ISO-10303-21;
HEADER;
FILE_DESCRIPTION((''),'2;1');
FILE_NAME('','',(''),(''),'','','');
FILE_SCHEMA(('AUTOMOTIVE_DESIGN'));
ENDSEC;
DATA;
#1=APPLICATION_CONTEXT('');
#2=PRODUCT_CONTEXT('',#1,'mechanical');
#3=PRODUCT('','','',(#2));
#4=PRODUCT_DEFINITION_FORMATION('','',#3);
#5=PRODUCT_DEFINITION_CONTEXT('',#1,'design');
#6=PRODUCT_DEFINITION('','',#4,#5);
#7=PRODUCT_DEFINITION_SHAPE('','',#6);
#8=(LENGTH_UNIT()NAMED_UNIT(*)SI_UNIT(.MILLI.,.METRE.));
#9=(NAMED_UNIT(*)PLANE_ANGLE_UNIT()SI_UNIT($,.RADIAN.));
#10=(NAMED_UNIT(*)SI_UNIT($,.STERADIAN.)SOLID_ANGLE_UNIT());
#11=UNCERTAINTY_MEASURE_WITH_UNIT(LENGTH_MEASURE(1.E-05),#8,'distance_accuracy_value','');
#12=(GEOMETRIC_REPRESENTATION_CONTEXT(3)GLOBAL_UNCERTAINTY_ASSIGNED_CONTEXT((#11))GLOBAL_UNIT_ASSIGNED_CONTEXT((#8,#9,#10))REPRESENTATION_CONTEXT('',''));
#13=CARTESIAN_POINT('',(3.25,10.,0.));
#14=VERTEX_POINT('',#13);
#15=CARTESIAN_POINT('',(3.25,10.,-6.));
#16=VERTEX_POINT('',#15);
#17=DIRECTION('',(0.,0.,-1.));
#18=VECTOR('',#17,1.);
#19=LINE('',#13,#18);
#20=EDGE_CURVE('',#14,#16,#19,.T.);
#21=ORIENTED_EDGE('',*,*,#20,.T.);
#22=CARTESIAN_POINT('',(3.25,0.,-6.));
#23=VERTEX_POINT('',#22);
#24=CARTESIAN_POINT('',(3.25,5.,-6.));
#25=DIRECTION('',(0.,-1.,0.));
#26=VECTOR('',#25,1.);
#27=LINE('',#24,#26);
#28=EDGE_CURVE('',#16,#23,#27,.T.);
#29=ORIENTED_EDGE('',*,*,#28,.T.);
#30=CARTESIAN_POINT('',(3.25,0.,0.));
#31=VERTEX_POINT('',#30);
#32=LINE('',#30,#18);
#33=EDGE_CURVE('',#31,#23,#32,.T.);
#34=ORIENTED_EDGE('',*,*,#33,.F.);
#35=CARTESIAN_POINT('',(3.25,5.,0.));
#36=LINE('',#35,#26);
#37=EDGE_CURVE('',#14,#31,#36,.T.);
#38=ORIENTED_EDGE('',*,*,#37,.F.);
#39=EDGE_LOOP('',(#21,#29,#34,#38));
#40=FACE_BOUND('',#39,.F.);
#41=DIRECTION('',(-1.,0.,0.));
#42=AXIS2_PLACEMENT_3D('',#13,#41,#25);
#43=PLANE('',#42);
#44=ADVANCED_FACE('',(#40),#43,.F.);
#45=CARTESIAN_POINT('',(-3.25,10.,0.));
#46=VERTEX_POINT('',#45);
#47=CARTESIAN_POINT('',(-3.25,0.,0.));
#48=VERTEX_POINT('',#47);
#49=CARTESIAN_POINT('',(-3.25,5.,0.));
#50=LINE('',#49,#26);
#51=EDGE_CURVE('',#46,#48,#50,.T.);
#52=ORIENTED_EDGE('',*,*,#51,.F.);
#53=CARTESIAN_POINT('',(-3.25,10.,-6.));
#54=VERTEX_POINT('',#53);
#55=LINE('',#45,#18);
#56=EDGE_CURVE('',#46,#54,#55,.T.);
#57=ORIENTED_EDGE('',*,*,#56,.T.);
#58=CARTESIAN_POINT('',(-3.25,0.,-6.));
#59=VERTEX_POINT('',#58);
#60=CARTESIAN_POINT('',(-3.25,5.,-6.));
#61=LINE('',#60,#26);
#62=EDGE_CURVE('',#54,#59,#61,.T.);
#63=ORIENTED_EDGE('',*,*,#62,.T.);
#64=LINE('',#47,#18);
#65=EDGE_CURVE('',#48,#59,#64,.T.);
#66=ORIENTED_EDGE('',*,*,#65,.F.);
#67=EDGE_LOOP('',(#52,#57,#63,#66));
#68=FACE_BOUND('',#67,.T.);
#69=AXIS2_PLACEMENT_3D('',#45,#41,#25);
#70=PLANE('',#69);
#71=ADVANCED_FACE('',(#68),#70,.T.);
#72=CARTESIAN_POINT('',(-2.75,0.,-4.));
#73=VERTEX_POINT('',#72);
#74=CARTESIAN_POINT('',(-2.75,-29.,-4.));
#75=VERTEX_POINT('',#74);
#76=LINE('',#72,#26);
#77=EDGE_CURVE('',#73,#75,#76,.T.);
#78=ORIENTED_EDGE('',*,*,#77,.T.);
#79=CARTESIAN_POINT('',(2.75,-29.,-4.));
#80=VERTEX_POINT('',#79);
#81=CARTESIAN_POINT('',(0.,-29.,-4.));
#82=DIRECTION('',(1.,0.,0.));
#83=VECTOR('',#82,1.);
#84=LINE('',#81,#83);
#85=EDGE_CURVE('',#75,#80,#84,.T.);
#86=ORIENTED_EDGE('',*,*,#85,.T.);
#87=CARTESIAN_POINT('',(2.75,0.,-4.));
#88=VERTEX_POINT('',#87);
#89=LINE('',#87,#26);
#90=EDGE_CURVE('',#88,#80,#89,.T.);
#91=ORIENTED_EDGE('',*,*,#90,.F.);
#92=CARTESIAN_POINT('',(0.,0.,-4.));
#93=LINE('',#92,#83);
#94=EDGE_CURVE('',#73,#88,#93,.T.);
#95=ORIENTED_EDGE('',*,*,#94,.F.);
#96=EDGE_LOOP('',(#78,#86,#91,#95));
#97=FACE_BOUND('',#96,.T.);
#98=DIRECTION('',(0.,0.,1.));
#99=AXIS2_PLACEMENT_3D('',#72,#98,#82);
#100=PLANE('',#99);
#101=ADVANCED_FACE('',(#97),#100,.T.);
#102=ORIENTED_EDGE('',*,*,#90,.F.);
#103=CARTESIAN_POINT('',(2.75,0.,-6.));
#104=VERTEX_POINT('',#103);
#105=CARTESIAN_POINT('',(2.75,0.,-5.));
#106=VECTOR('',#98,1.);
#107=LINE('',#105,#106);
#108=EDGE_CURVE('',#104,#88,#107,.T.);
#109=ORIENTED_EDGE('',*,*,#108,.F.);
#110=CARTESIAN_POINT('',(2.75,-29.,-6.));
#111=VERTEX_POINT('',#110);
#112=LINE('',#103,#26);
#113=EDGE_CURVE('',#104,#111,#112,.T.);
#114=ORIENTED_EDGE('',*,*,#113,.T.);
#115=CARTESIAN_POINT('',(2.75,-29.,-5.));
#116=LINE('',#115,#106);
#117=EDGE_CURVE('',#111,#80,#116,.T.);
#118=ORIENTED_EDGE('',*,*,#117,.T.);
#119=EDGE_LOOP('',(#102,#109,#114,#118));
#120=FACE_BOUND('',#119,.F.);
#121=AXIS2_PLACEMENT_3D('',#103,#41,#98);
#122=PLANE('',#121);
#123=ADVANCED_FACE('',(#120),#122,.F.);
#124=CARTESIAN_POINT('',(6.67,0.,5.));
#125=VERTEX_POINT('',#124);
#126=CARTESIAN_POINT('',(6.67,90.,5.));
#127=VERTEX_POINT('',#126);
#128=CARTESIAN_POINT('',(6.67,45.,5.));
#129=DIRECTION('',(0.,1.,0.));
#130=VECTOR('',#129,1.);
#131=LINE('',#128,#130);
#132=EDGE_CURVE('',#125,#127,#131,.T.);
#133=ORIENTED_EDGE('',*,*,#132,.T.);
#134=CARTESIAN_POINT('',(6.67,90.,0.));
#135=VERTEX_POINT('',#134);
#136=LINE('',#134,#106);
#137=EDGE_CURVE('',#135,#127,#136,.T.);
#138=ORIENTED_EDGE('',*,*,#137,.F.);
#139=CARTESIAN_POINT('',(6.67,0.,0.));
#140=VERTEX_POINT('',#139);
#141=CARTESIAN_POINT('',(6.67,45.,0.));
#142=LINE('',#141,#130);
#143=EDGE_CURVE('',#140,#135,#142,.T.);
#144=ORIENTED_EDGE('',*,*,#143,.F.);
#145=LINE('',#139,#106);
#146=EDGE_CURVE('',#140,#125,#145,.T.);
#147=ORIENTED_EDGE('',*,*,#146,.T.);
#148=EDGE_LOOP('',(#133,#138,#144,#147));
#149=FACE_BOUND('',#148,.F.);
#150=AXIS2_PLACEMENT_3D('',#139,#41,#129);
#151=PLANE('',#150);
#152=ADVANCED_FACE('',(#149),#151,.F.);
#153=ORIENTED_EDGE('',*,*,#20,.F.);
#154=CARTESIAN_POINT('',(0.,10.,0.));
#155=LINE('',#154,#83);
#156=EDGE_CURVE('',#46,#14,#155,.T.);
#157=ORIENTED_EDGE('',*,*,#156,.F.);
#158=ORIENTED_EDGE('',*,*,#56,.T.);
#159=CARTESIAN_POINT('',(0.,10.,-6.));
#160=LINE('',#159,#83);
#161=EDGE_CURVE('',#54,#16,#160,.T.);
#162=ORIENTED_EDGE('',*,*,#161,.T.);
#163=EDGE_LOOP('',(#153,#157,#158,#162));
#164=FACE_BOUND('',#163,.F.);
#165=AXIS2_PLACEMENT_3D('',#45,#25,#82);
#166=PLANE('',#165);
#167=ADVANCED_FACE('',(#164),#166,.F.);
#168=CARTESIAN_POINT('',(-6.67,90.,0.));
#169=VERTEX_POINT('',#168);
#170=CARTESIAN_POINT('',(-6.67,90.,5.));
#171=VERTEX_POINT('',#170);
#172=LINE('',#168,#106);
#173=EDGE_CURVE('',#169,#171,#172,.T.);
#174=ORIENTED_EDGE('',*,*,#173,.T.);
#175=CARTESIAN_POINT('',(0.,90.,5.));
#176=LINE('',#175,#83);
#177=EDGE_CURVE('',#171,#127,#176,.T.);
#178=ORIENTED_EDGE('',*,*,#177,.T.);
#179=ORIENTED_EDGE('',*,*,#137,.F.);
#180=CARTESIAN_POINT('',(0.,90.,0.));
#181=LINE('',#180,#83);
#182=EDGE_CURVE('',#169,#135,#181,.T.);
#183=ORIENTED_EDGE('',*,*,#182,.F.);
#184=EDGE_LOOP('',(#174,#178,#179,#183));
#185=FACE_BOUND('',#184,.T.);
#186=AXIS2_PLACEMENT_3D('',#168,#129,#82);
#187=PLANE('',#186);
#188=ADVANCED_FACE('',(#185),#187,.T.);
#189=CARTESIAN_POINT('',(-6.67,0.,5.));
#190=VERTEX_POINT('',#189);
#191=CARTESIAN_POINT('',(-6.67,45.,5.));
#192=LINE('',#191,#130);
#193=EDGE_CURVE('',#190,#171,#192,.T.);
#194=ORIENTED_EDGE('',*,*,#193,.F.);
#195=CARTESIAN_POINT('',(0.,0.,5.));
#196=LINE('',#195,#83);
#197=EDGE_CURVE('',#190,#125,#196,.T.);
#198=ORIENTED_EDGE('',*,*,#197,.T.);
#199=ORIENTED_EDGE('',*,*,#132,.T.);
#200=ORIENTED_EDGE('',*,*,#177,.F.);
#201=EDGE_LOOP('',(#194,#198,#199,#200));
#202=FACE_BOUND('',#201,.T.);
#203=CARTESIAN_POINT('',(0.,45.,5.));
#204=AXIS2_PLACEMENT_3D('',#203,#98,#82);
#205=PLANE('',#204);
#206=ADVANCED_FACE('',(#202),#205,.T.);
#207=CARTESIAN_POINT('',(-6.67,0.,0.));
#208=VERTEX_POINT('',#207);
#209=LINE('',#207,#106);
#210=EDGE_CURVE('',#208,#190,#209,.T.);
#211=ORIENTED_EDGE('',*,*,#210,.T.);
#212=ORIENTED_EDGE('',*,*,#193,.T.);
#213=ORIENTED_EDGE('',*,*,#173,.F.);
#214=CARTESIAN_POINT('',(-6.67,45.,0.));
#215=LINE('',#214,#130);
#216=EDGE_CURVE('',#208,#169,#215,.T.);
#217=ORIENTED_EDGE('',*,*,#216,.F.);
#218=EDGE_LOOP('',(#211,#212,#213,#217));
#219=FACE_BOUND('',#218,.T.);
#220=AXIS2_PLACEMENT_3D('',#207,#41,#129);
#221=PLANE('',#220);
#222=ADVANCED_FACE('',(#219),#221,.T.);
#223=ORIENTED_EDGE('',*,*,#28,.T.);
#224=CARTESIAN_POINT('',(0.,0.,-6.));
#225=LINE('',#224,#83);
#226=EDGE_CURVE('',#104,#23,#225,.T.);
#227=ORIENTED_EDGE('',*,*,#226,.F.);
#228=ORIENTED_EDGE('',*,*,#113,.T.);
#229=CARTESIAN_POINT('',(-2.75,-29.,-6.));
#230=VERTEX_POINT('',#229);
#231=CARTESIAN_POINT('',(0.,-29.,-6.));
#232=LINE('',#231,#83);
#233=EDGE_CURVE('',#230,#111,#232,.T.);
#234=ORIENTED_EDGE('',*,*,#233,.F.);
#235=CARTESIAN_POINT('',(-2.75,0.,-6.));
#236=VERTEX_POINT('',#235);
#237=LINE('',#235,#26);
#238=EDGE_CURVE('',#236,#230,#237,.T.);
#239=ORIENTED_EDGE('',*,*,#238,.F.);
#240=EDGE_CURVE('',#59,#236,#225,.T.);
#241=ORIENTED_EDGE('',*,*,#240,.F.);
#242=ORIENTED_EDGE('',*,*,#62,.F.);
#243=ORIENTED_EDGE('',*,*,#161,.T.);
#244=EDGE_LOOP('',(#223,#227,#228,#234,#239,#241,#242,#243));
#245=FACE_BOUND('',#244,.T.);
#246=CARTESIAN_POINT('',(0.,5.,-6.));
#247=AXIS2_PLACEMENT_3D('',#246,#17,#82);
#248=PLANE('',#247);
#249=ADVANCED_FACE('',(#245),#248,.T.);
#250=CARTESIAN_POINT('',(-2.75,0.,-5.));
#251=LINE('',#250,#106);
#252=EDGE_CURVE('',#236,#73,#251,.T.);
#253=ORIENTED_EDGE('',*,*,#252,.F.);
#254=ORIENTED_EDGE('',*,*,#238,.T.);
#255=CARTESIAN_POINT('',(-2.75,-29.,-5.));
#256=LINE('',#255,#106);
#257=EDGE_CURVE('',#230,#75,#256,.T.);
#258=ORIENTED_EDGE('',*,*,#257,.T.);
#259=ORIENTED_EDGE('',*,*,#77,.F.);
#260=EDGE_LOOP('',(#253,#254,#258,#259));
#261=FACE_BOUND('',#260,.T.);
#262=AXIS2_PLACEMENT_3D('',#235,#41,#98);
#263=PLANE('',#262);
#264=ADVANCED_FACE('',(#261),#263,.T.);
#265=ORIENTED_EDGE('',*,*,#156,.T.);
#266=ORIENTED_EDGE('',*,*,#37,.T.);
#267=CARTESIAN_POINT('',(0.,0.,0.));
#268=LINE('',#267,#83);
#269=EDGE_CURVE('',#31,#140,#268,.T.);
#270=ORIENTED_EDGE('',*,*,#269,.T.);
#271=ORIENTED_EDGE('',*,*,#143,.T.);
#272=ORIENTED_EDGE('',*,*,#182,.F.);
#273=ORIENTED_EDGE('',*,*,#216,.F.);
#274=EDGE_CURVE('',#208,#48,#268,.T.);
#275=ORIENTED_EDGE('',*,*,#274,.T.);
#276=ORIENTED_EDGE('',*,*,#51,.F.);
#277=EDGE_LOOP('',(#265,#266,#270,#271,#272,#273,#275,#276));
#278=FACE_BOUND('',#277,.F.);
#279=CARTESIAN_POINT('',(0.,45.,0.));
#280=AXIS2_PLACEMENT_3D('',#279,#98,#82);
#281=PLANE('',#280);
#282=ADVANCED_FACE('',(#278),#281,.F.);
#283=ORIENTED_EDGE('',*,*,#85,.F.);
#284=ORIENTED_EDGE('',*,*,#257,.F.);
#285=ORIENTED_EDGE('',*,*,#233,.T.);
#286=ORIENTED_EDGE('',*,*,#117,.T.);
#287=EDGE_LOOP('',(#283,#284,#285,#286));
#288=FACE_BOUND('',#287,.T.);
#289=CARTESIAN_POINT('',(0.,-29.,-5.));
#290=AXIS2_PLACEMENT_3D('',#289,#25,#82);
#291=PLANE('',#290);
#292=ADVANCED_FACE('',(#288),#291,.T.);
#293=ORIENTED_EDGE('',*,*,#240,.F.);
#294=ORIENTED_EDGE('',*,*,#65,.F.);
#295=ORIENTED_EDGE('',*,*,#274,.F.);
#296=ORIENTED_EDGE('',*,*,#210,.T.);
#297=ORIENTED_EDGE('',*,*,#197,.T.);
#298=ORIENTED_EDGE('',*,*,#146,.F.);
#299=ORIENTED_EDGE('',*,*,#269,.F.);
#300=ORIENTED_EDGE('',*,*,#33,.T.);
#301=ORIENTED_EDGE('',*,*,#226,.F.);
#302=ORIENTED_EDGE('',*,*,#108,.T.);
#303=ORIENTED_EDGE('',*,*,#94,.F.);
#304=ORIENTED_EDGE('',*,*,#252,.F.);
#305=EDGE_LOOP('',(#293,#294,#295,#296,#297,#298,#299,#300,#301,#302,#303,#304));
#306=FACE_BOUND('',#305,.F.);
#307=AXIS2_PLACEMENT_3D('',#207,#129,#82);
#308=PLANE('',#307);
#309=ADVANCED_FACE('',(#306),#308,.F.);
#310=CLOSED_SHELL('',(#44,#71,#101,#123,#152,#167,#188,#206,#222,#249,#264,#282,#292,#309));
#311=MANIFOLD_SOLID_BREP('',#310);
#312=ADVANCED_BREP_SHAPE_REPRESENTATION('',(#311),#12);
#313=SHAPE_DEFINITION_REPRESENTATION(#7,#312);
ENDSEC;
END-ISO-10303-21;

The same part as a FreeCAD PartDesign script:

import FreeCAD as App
import Part
import Sketcher
Q = App.Units.Quantity


def add_polygon(sketch, points):
    """Adds a closed chain of lines whose ends are joined by coincident constraints."""
    first, n = sketch.GeometryCount, len(points)
    for a, b in zip(points, points[1:] + points[:1]):
        sketch.addGeometry(Part.LineSegment(App.Vector(*a, 0), App.Vector(*b, 0)), False)
    for i in range(n):
        sketch.addConstraint(Sketcher.Constraint("Coincident", first + i, 2, first + (i + 1) % n, 1))

doc = App.newDocument("Part")
body = doc.addObject("PartDesign::Body", "Body")

# Sketch on XY plane
sketch1 = body.newObject("Sketcher::SketchObject", "Sketch")
sketch1.AttachmentSupport = (doc.getObject("XY_Plane"), [""])
sketch1.MapMode = "FlatFace"
add_polygon(sketch1, [(-7, 90), (-7, 0), (7, 0), (7, 90)])  # lines 0-3
sketch1.addConstraint(Sketcher.Constraint("Vertical", 0))
sketch1.addConstraint(Sketcher.Constraint("Horizontal", 1))
sketch1.addConstraint(Sketcher.Constraint("Vertical", 2))
sketch1.addConstraint(Sketcher.Constraint("Horizontal", 3))
sketch1.addConstraint(Sketcher.Constraint("Symmetric", 0, 2, 1, 2, -1, 1))
sketch1.addConstraint(Sketcher.Constraint("DistanceY", 0, 2, 0, 1, Q("90 mm")))
sketch1.addConstraint(Sketcher.Constraint("DistanceX", 1, 1, 1, 2, Q("13.34 mm")))
pad1 = body.newObject("PartDesign::Pad", "Pad")
pad1.Profile = sketch1
pad1.Length = 5

# Sketch on XY plane
sketch2 = body.newObject("Sketcher::SketchObject", "Sketch001")
sketch2.AttachmentSupport = (doc.getObject("XY_Plane"), [""])
sketch2.MapMode = "FlatFace"
add_polygon(sketch2, [(-3, 0), (-3, 10), (3, 10), (3, 0)])  # lines 0-3
sketch2.addConstraint(Sketcher.Constraint("Vertical", 0))
sketch2.addConstraint(Sketcher.Constraint("Horizontal", 1))
sketch2.addConstraint(Sketcher.Constraint("Vertical", 2))
sketch2.addConstraint(Sketcher.Constraint("Horizontal", 3))
sketch2.addConstraint(Sketcher.Constraint("Symmetric", 2, 2, 3, 2, -1, 1))
sketch2.addConstraint(Sketcher.Constraint("DistanceY", 0, 1, 0, 2, Q("10 mm")))
sketch2.addConstraint(Sketcher.Constraint("DistanceX", 1, 1, 1, 2, Q("6.5 mm")))
pad2 = body.newObject("PartDesign::Pad", "Pad001")
pad2.Profile = sketch2
pad2.Length = 6
pad2.Reversed = True

# Sketch on XZ plane
sketch3 = body.newObject("Sketcher::SketchObject", "Sketch002")
sketch3.AttachmentSupport = (doc.getObject("XZ_Plane"), [""])
sketch3.MapMode = "FlatFace"
add_polygon(sketch3, [(-2.8, -4), (-2.8, -6), (2.8, -6), (2.8, -4)])  # lines 0-3
sketch3.addConstraint(Sketcher.Constraint("Vertical", 0))
sketch3.addConstraint(Sketcher.Constraint("Horizontal", 1))
sketch3.addConstraint(Sketcher.Constraint("Vertical", 2))
sketch3.addConstraint(Sketcher.Constraint("Horizontal", 3))
sketch3.addConstraint(Sketcher.Constraint("DistanceY", 0, 2, 0, 1, Q("2 mm")))
sketch3.addConstraint(Sketcher.Constraint("DistanceX", 1, 1, 1, 2, Q("5.5 mm")))
sketch3.addConstraint(Sketcher.Constraint("DistanceY", 0, 2, -1, 1, Q("6 mm")))
sketch3.addConstraint(Sketcher.Constraint("DistanceX", 0, 2, -1, 1, Q("2.75 mm")))
pad3 = body.newObject("PartDesign::Pad", "Pad002")
pad3.Profile = sketch3
pad3.Length = 29

doc.recompute()
